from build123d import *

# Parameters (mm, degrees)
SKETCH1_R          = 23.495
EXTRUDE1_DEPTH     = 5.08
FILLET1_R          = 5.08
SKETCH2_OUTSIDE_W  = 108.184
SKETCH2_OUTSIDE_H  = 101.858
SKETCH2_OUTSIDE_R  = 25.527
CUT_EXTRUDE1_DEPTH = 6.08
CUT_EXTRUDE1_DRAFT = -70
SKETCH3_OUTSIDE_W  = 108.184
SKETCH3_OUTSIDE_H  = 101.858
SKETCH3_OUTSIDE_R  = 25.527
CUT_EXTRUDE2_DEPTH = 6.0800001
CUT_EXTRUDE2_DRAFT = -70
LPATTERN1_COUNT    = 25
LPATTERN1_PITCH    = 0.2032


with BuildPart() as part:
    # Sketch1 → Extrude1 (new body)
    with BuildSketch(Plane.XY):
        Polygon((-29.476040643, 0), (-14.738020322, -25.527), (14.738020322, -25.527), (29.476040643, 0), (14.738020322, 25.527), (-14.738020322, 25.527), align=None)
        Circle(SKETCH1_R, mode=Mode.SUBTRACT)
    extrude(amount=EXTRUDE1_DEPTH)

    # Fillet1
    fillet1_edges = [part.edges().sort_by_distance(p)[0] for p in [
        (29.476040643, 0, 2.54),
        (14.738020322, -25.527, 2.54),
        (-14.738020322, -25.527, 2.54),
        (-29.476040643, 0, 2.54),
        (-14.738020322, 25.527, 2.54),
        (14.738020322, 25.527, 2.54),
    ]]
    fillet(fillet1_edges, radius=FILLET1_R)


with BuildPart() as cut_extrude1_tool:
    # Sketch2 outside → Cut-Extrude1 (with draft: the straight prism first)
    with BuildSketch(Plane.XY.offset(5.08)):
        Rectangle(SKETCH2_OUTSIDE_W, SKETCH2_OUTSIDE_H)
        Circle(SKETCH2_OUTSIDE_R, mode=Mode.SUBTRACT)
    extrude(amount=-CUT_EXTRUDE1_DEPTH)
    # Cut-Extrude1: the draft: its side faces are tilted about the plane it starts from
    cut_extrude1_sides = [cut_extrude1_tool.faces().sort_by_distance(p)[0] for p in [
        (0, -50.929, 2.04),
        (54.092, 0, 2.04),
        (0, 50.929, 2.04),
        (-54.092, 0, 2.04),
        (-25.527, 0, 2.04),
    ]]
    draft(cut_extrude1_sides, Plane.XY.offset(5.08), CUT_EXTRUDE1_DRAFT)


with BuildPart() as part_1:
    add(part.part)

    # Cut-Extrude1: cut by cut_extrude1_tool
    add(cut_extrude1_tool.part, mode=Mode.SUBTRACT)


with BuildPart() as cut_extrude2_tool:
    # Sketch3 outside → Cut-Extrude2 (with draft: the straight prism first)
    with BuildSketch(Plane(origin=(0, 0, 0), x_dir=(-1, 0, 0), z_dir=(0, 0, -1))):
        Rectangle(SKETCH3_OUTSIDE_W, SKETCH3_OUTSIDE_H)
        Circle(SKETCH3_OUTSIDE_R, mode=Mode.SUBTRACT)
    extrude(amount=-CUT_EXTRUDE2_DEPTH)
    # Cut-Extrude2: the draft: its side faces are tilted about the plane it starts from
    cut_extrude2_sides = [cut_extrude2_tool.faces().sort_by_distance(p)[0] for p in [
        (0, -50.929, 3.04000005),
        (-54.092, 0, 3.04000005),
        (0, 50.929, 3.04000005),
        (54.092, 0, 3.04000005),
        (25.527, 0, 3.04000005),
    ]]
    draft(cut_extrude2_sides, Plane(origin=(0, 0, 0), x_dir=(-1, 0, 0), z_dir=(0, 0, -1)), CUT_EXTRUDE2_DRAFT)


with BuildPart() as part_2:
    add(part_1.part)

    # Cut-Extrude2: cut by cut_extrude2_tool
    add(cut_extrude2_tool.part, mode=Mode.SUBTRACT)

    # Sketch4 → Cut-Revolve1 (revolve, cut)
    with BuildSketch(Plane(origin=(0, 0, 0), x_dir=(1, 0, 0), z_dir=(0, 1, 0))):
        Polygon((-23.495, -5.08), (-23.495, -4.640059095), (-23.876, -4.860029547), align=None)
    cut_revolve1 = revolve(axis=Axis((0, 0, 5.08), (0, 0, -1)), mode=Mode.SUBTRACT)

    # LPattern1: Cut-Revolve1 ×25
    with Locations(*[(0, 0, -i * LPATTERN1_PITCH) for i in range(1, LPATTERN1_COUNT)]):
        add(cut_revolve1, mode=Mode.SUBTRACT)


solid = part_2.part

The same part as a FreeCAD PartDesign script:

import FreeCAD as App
import Part
import Sketcher

V = App.Vector
Q = App.Units.Quantity


def edges_at(feature, points):
    """Names of the edges that pass closest to the given points."""
    edges = feature.Shape.Edges
    near = lambda p: min(range(len(edges)), key=lambda i: edges[i].distToShape(Part.Vertex(*p))[0])
    return sorted({f"Edge{near(p) + 1}" for p in points})


def faces_at(feature, points):
    """Names of the faces that lie closest to the given points."""
    faces = feature.Shape.Faces
    near = lambda p: min(range(len(faces)), key=lambda i: faces[i].distToShape(Part.Vertex(*p))[0])
    return sorted({f"Face{near(p) + 1}" for p in points})


def add_polygon(sketch, points):
    """Adds a closed chain of lines whose ends are joined by coincident constraints."""
    first, n = sketch.GeometryCount, len(points)
    for a, b in zip(points, points[1:] + points[:1]):
        sketch.addGeometry(Part.LineSegment(App.Vector(*a, 0), App.Vector(*b, 0)), False)
    for i in range(n):
        sketch.addConstraint(Sketcher.Constraint("Coincident", first + i, 2, first + (i + 1) % n, 1))

doc = App.newDocument("Part")
params = doc.addObject("Spreadsheet::Sheet", "Params")
for row, (alias, value) in enumerate([
    ("sketch1_diameter", "1.85 in"),
    ("pad1_length", "0.2 in"),
    ("fillet_radius", "0.2 in"),
    ("sketch2_diameter", "2.01 in"),
    ("pad2_length", "6.08 mm"),
    ("draft_angle", "70 deg"),
    ("sketch3_diameter", "2.01 in"),
    ("pad3_length", "6.08 mm"),
    ("draft2_angle", "70 deg"),
    ("groove_angle", "360 deg"),
    ("linearpattern_pitch", "0.008 in"),
], start=1):
    params.set(f"A{row}", alias)
    params.set(f"B{row}", "=" + value)
    params.setAlias(f"B{row}", alias)

body = doc.addObject("PartDesign::Body", "Body")

# Sketch on XY plane
sketch1 = body.newObject("Sketcher::SketchObject", "Sketch")
sketch1.AttachmentSupport = (doc.getObject("XY_Plane"), [""])
sketch1.MapMode = "FlatFace"
add_polygon(sketch1, [(-29, 0), (-15, -26), (15, -26), (29, 0), (15, 26), (-15, 26)])  # lines 0-5
sketch1.addGeometry(Part.Circle(V(0, 0, 0), V(0, 0, 1), 23), False)  # 6
sketch1.addConstraint(Sketcher.Constraint("Horizontal", 1))
sketch1.addConstraint(Sketcher.Constraint("Horizontal", 4))
sketch1.addConstraint(Sketcher.Constraint("Coincident", 6, 3, -1, 1))
sketch1.addConstraint(Sketcher.Constraint("Symmetric", 0, 2, 3, 2, -1, 1))
sketch1.addConstraint(Sketcher.Constraint("Symmetric", 2, 2, 5, 2, -1, 1))
sketch1.addConstraint(Sketcher.Constraint("PointOnObject", 2, 2, -1))
sketch1.addConstraint(Sketcher.Constraint("Parallel", 2, 5))
sketch1.addConstraint(Sketcher.Constraint("Vertical", 1, 2, 3, 2))
sketch1.addConstraint(Sketcher.Constraint("Diameter", 6, Q("1.85 in")))
sketch1.addConstraint(Sketcher.Constraint("Angle", 0, Q("-60 deg")))
sketch1.addConstraint(Sketcher.Constraint("DistanceY", 1, 2, 3, 2, Q("2.01 in")))
sketch1.addConstraint(Sketcher.Constraint("DistanceX", 1, 1, 1, 2, Q("29.476041 mm")))
sketch1.setExpression("Constraints[14]", "Params.sketch1_diameter")
pad1 = body.newObject("PartDesign::Pad", "Pad")
pad1.Profile = sketch1
pad1.setExpression("Length", "Params.pad1_length")
doc.recompute()

fillet = body.newObject("PartDesign::Fillet", "Fillet")
fillet.Base = (pad1, edges_at(pad1, [
    (29.476, 0, 2.54),
    (14.738, -25.527, 2.54),
    (-14.738, -25.527, 2.54),
    (-29.476, 0, 2.54),
    (-14.738, 25.527, 2.54),
    (14.738, 25.527, 2.54),
]))
fillet.setExpression("Radius", "Params.fillet_radius")
body2 = doc.addObject("PartDesign::Body", "Body001")

# Sketch on XY plane
sketch2 = body2.newObject("Sketcher::SketchObject", "Sketch001")
sketch2.AttachmentSupport = (doc.getObject("XY_Plane001"), [""])
sketch2.MapMode = "FlatFace"
sketch2.AttachmentOffset = App.Placement(V(0, 0, 0.2 * 25.4), App.Rotation())
add_polygon(sketch2, [(-54, 51), (-54, -51), (54, -51), (54, 51)])  # lines 0-3
sketch2.addGeometry(Part.Circle(V(0, 0, 0), V(0, 0, 1), 26), False)  # 4
sketch2.addConstraint(Sketcher.Constraint("Vertical", 0))
sketch2.addConstraint(Sketcher.Constraint("Horizontal", 1))
sketch2.addConstraint(Sketcher.Constraint("Vertical", 2))
sketch2.addConstraint(Sketcher.Constraint("Horizontal", 3))
sketch2.addConstraint(Sketcher.Constraint("Coincident", 4, 3, -1, 1))
sketch2.addConstraint(Sketcher.Constraint("Symmetric", 0, 2, 2, 2, -1, 1))
sketch2.addConstraint(Sketcher.Constraint("Diameter", 4, Q("2.01 in")))
sketch2.addConstraint(Sketcher.Constraint("DistanceX", 1, 1, 1, 2, Q("108.184 mm")))
sketch2.addConstraint(Sketcher.Constraint("DistanceY", 0, 2, 0, 1, Q("101.858 mm")))
sketch2.setExpression("Constraints[10]", "Params.sketch2_diameter")
pad2 = body2.newObject("PartDesign::Pad", "Pad001")
pad2.Profile = sketch2
pad2.setExpression("Length", "Params.pad2_length")
pad2.Reversed = True
doc.recompute()

datumplane = body2.newObject("PartDesign::Plane", "DatumPlane")
datumplane.AttachmentSupport = (doc.getObject("XY_Plane001"), [""])
datumplane.MapMode = "FlatFace"
datumplane.AttachmentOffset = App.Placement(V(0, 0, 0.2 * 25.4), App.Rotation())
draft = body2.newObject("PartDesign::Draft", "Draft")
draft.Base = (pad2, faces_at(pad2, [
    (0, -50.929, 2.04),
    (54.092, 0, 2.04),
    (0, 50.929, 2.04),
    (-54.092, 0, 2.04),
    (-25.527, 0, 2.04),
]))
draft.NeutralPlane = (datumplane, [""])
draft.setExpression("Angle", "Params.draft_angle")
draft.Reversed = True
doc.recompute()

boolean = body.newObject("PartDesign::Boolean", "Boolean")
boolean.Type = "Cut"
boolean.addObjects([body2])
body3 = doc.addObject("PartDesign::Body", "Body002")

# Sketch on XY plane
sketch3 = body3.newObject("Sketcher::SketchObject", "Sketch002")
sketch3.AttachmentSupport = (doc.getObject("XY_Plane002"), [""])
sketch3.MapMode = "FlatFace"
add_polygon(sketch3, [(54, 51), (54, -51), (-54, -51), (-54, 51)])  # lines 0-3
sketch3.addGeometry(Part.Circle(V(0, 0, 0), V(0, 0, 1), 26), False)  # 4
sketch3.addConstraint(Sketcher.Constraint("Vertical", 0))
sketch3.addConstraint(Sketcher.Constraint("Horizontal", 1))
sketch3.addConstraint(Sketcher.Constraint("Vertical", 2))
sketch3.addConstraint(Sketcher.Constraint("Horizontal", 3))
sketch3.addConstraint(Sketcher.Constraint("Coincident", 4, 3, -1, 1))
sketch3.addConstraint(Sketcher.Constraint("Symmetric", 0, 2, 2, 2, -1, 1))
sketch3.addConstraint(Sketcher.Constraint("Diameter", 4, Q("2.01 in")))
sketch3.addConstraint(Sketcher.Constraint("DistanceX", 1, 2, 1, 1, Q("108.184 mm")))
sketch3.addConstraint(Sketcher.Constraint("DistanceY", 0, 2, 0, 1, Q("101.858 mm")))
sketch3.setExpression("Constraints[10]", "Params.sketch3_diameter")
pad3 = body3.newObject("PartDesign::Pad", "Pad002")
pad3.Profile = sketch3
pad3.setExpression("Length", "Params.pad3_length")
doc.recompute()

draft2 = body3.newObject("PartDesign::Draft", "Draft001")
draft2.Base = (pad3, faces_at(pad3, [
    (0, -50.929, 3.04),
    (-54.092, 0, 3.04),
    (0, 50.929, 3.04),
    (54.092, 0, 3.04),
    (25.527, 0, 3.04),
]))
draft2.NeutralPlane = (doc.getObject("XY_Plane002"), [""])
draft2.setExpression("Angle", "Params.draft2_angle")
draft2.Reversed = False
doc.recompute()

boolean2 = body.newObject("PartDesign::Boolean", "Boolean001")
boolean2.Type = "Cut"
boolean2.addObjects([body3])

# Sketch on XZ plane
sketch4 = body.newObject("Sketcher::SketchObject", "Sketch003")
sketch4.AttachmentSupport = (doc.getObject("XZ_Plane"), [""])
sketch4.MapMode = "FlatFace"
add_polygon(sketch4, [(-23.5, 5.08), (-23.5, 4.64), (-23.88, 4.86)])  # lines 0-2
sketch4.addConstraint(Sketcher.Constraint("Vertical", 0))
sketch4.addConstraint(Sketcher.Constraint("Equal", 1, 2))
sketch4.addConstraint(Sketcher.Constraint("Angle", 1, Q("150 deg")))
sketch4.addConstraint(Sketcher.Constraint("DistanceY", -1, 1, 2, 2, Q("0.2 in")))
sketch4.addConstraint(Sketcher.Constraint("DistanceX", 1, 2, -1, 1, Q("0.94 in")))
sketch4.addConstraint(Sketcher.Constraint("DistanceX", 0, 2, -1, 1, Q("0.925 in")))
groove = body.newObject("PartDesign::Groove", "Groove")
groove.Profile = sketch4
groove.ReferenceAxis = (sketch4, ["V_Axis"])
groove.setExpression("Angle", "Params.groove_angle")
doc.recompute()

linearpattern = body.newObject("PartDesign::LinearPattern", "LinearPattern")
linearpattern.Originals = [groove]
linearpattern.Direction = (doc.getObject("Z_Axis"), [""])
linearpattern.Mode = "offset"
linearpattern.setExpression("Offset", "Params.linearpattern_pitch")
linearpattern.Occurrences = 25
linearpattern.Reversed = True
body.Tip = linearpattern

doc.recompute()
